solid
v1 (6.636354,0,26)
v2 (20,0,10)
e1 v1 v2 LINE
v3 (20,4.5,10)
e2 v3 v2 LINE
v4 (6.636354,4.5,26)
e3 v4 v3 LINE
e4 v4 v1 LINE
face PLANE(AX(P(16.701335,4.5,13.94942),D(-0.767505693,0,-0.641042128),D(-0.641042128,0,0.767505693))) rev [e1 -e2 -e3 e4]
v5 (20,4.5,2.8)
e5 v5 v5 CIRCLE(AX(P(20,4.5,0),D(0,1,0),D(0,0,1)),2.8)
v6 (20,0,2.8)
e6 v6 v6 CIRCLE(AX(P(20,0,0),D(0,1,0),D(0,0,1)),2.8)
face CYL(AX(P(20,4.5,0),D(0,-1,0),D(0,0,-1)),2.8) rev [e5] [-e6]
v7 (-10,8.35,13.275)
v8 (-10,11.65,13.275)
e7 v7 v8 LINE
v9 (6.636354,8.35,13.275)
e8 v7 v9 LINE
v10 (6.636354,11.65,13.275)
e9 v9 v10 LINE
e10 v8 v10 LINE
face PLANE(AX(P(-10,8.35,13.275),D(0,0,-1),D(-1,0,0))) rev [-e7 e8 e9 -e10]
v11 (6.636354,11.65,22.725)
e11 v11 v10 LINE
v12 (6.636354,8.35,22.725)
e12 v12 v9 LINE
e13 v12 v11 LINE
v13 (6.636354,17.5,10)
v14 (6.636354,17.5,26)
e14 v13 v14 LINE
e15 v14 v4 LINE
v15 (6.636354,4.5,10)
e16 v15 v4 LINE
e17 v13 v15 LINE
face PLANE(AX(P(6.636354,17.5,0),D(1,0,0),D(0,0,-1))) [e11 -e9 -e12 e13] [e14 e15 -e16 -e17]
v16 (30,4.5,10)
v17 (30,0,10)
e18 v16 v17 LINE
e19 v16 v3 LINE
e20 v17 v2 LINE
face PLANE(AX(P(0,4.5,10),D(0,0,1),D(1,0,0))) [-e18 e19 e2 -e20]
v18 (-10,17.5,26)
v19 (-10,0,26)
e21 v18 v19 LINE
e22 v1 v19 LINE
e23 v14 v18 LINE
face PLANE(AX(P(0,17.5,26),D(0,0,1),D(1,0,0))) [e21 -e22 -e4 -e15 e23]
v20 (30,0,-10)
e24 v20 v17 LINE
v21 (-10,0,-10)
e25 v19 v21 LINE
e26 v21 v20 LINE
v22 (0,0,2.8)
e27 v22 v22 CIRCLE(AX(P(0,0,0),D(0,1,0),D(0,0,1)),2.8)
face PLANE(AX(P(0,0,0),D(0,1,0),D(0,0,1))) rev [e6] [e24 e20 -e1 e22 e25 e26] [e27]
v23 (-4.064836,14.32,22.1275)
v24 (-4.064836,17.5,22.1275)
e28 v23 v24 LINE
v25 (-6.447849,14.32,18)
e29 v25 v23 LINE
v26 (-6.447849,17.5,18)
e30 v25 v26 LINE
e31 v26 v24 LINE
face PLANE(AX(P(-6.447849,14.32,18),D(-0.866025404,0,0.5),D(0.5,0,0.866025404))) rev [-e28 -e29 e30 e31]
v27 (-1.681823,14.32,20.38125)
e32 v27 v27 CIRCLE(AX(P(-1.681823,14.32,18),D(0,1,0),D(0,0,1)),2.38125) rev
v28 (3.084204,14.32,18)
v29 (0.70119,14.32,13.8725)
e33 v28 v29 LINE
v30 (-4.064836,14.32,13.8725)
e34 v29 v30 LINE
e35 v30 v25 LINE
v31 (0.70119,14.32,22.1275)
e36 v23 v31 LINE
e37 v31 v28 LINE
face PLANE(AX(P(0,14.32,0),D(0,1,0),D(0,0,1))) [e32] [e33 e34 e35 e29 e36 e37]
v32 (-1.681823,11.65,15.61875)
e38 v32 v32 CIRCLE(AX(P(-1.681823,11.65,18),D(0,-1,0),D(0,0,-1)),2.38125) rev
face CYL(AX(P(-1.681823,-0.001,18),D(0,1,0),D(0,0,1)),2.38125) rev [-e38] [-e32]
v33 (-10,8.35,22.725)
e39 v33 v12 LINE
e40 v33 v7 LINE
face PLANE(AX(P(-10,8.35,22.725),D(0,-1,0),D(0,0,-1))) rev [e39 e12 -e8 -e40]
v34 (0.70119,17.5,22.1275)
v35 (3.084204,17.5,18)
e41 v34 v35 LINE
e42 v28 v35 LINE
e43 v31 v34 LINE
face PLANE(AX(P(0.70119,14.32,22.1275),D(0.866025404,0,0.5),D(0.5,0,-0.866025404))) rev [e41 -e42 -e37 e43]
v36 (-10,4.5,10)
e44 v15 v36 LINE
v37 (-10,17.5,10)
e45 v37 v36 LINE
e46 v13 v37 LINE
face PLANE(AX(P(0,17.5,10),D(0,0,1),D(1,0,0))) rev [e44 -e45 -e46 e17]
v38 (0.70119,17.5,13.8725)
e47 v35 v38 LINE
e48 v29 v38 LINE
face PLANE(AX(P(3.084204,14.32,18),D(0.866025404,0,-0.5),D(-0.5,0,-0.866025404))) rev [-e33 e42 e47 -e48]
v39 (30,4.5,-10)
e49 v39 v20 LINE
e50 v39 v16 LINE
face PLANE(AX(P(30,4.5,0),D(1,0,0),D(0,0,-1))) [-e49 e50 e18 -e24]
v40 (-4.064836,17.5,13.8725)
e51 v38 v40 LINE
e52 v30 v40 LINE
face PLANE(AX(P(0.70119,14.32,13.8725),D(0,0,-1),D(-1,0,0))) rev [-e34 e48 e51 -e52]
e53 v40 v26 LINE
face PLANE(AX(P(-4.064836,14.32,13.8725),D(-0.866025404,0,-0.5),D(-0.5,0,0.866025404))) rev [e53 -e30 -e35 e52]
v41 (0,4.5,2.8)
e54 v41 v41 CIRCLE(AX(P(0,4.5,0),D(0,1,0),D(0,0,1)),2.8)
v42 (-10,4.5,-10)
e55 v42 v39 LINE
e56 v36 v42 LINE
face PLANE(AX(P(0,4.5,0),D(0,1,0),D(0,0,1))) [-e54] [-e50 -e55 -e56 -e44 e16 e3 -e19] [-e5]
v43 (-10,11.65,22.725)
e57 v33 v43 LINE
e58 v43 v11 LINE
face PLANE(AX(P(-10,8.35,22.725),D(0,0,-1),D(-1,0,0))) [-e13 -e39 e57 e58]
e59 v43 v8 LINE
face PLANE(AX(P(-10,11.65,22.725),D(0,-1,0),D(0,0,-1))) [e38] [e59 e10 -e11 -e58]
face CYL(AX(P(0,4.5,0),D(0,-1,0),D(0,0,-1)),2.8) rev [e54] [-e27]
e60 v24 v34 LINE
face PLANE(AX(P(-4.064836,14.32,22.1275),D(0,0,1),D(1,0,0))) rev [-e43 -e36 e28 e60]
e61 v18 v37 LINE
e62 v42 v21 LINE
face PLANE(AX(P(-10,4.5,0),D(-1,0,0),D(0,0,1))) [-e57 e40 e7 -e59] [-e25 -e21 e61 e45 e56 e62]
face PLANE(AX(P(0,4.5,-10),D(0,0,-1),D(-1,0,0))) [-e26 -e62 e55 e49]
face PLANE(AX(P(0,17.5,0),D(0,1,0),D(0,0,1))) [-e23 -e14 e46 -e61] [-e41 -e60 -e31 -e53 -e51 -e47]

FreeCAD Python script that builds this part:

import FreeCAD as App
import Part
import Sketcher
from FreeCAD import Vector
Q = App.Units.Quantity

doc = App.newDocument("Part")
params = doc.addObject("Spreadsheet::Sheet", "Params")
for row, (alias, value) in enumerate([
    ("sketch1_diameter", "5.6 mm"),
    ("sketch1_width", "40 mm"),
    ("sketch1_width2", "10 mm"),
    ("sketch1_height", "20 mm"),
    ("sketch1_height2", "16 mm"),
    ("pad1_length", "4.5 mm"),
    ("sketch2_height", "16 mm"),
    ("pad2_length", "17.5 mm"),
    ("sketch3_width", "3.3 mm"),
    ("sketch3_height", "9.45 mm"),
    ("pocket2_length", "3.18 mm"),
    ("pocket3_length", "5.85 mm"),
], start=1):
    params.set(f"A{row}", alias)
    params.set(f"B{row}", "=" + value)
    params.setAlias(f"B{row}", alias)

body = doc.addObject("PartDesign::Body", "Body")

# Sketch on XZ plane
sketch1 = body.newObject("Sketcher::SketchObject", "Sketch")
sketch1.AttachmentSupport = (doc.getObject("XZ_Plane"), [""])
sketch1.MapMode = "FlatFace"
sketch1.addGeometry([
    Part.LineSegment(Vector(30, -10, 0), Vector(-10, -10, 0)),  # 0
    Part.LineSegment(Vector(-10, -10, 0), Vector(-10, 10, 0)),  # 1
    Part.LineSegment(Vector(-10, 10, 0), Vector(6.6, 10, 0)),  # 2
    Part.LineSegment(Vector(6.6, 10, 0), Vector(6.6, 26, 0)),  # 3
    Part.LineSegment(Vector(6.6, 26, 0), Vector(20, 10, 0)),  # 4
    Part.LineSegment(Vector(20, 10, 0), Vector(30, 10, 0)),  # 5
    Part.LineSegment(Vector(30, 10, 0), Vector(30, -10, 0)),  # 6
    Part.Circle(Vector(0, 0, 0), Vector(0, 0, 1), 2.8),  # 7
    Part.Circle(Vector(20, 0, 0), Vector(0, 0, 1), 2.8),  # 8
], False)
sketch1.addConstraint([
    Sketcher.Constraint("Coincident", 0, 2, 1, 1),
    Sketcher.Constraint("Coincident", 1, 2, 2, 1),
    Sketcher.Constraint("Coincident", 2, 2, 3, 1),
    Sketcher.Constraint("Coincident", 3, 2, 4, 1),
    Sketcher.Constraint("Coincident", 4, 2, 5, 1),
    Sketcher.Constraint("Coincident", 5, 2, 6, 1),
    Sketcher.Constraint("Coincident", 6, 2, 0, 1),
    Sketcher.Constraint("Horizontal", 0),
    Sketcher.Constraint("Vertical", 1),
    Sketcher.Constraint("Horizontal", 2),
    Sketcher.Constraint("Vertical", 3),
    Sketcher.Constraint("Horizontal", 5),
    Sketcher.Constraint("Vertical", 6),
    Sketcher.Constraint("Coincident", 7, 3, -1, 1),
    Sketcher.Constraint("Equal", 7, 8),
    Sketcher.Constraint("PointOnObject", 8, 3, -1),
    Sketcher.Constraint("Horizontal", 2, 2, 4, 2),
    Sketcher.Constraint("Vertical", 8, 3, 4, 2),
    Sketcher.Constraint("Diameter", 7, 5.6),
    Sketcher.Constraint("DistanceX", 0, 2, 0, 1, 40.0),
    Sketcher.Constraint("DistanceX", 5, 1, 5, 2, 10.0),
    Sketcher.Constraint("DistanceY", 1, 1, 1, 2, 20.0),
    Sketcher.Constraint("DistanceY", 3, 1, 3, 2, 16.0),
    Sketcher.Constraint("DistanceX", -1, 1, 8, 3, 20.0),
    Sketcher.Constraint("DistanceY", 0, 2, -1, 1, 10.0),
    Sketcher.Constraint("Distance", 4, 20.846751),
])
sketch1.setExpression("Constraints[18]", "Params.sketch1_diameter")
sketch1.setExpression("Constraints[19]", "Params.sketch1_width")
sketch1.setExpression("Constraints[20]", "Params.sketch1_width2")
sketch1.setExpression("Constraints[21]", "Params.sketch1_height")
sketch1.setExpression("Constraints[22]", "Params.sketch1_height2")
pad1 = body.newObject("PartDesign::Pad", "Pad")
pad1.Profile = sketch1
pad1.setExpression("Length", "Params.pad1_length")
pad1.Reversed = True

# Sketch on XZ plane
sketch2 = body.newObject("Sketcher::SketchObject", "Sketch001")
sketch2.AttachmentSupport = (doc.getObject("XZ_Plane"), [""])
sketch2.MapMode = "FlatFace"
sketch2.addGeometry([
    Part.LineSegment(Vector(-10, 10, 0), Vector(-10, 26, 0)),
    Part.LineSegment(Vector(-10, 26, 0), Vector(7, 26, 0)),
    Part.LineSegment(Vector(7, 26, 0), Vector(7, 10, 0)),
    Part.LineSegment(Vector(7, 10, 0), Vector(-10, 10, 0)),
], False)
sketch2.addConstraint([
    Sketcher.Constraint("Coincident", 0, 2, 1, 1),
    Sketcher.Constraint("Coincident", 1, 2, 2, 1),
    Sketcher.Constraint("Coincident", 2, 2, 3, 1),
    Sketcher.Constraint("Coincident", 3, 2, 0, 1),
    Sketcher.Constraint("Vertical", 0),
    Sketcher.Constraint("Horizontal", 1),
    Sketcher.Constraint("Vertical", 2),
    Sketcher.Constraint("Horizontal", 3),
    Sketcher.Constraint("DistanceY", 0, 1, 0, 2, 16.0),
    Sketcher.Constraint("DistanceX", 0, 2, -1, 1, 10.0),
    Sketcher.Constraint("DistanceY", -1, 1, 0, 2, 26.0),
    Sketcher.Constraint("DistanceX", 1, 1, 1, 2, 16.636354),
])
sketch2.setExpression("Constraints[8]", "Params.sketch2_height")
pad2 = body.newObject("PartDesign::Pad", "Pad001")
pad2.Profile = sketch2
pad2.setExpression("Length", "Params.pad2_length")
pad2.Reversed = True

# Sketch on YZ plane
sketch3 = body.newObject("Sketcher::SketchObject", "Sketch002")
sketch3.AttachmentSupport = (doc.getObject("YZ_Plane"), [""])
sketch3.MapMode = "FlatFace"
sketch3.AttachmentOffset = App.Placement(Vector(0, 0, 6.636354), App.Rotation())
sketch3.addGeometry([
    Part.LineSegment(Vector(11.7, 22.7, 0), Vector(8.3, 22.7, 0)),
    Part.LineSegment(Vector(8.3, 22.7, 0), Vector(8.3, 13.3, 0)),
    Part.LineSegment(Vector(8.3, 13.3, 0), Vector(11.7, 13.3, 0)),
    Part.LineSegment(Vector(11.7, 13.3, 0), Vector(11.7, 22.7, 0)),
], False)
sketch3.addConstraint([
    Sketcher.Constraint("Coincident", 0, 2, 1, 1),
    Sketcher.Constraint("Coincident", 1, 2, 2, 1),
    Sketcher.Constraint("Coincident", 2, 2, 3, 1),
    Sketcher.Constraint("Coincident", 3, 2, 0, 1),
    Sketcher.Constraint("Horizontal", 0),
    Sketcher.Constraint("Vertical", 1),
    Sketcher.Constraint("Horizontal", 2),
    Sketcher.Constraint("Vertical", 3),
    Sketcher.Constraint("DistanceX", 0, 2, 0, 1, 3.3),
    Sketcher.Constraint("DistanceY", 1, 2, 1, 1, 9.45),
    Sketcher.Constraint("DistanceX", -1, 1, 0, 2, 8.35),
    Sketcher.Constraint("DistanceY", -1, 1, 0, 2, 22.725),
])
sketch3.setExpression("Constraints[8]", "Params.sketch3_width")
sketch3.setExpression("Constraints[9]", "Params.sketch3_height")
pocket1 = body.newObject("PartDesign::Pocket", "Pocket")
pocket1.Profile = sketch3
pocket1.Type = "ThroughAll"

# Sketch on XZ plane
sketch4 = body.newObject("Sketcher::SketchObject", "Sketch003")
sketch4.AttachmentSupport = (doc.getObject("XZ_Plane"), [""])
sketch4.MapMode = "FlatFace"
sketch4.AttachmentOffset = App.Placement(Vector(0, 0, -17.5), App.Rotation())
sketch4.addGeometry([
    Part.LineSegment(Vector(0.7, 13.9, 0), Vector(-4.1, 13.9, 0)),  # 0
    Part.LineSegment(Vector(-4.1, 13.9, 0), Vector(-6.4, 18, 0)),  # 1
    Part.LineSegment(Vector(-6.4, 18, 0), Vector(-4.1, 22.1, 0)),  # 2
    Part.LineSegment(Vector(-4.1, 22.1, 0), Vector(0.7, 22.1, 0)),  # 3
    Part.LineSegment(Vector(0.7, 22.1, 0), Vector(3.1, 18, 0)),  # 4
    Part.LineSegment(Vector(3.1, 18, 0), Vector(0.7, 13.9, 0)),  # 5
], False)
sketch4.addConstraint([
    Sketcher.Constraint("Coincident", 0, 2, 1, 1),
    Sketcher.Constraint("Coincident", 1, 2, 2, 1),
    Sketcher.Constraint("Coincident", 2, 2, 3, 1),
    Sketcher.Constraint("Coincident", 3, 2, 4, 1),
    Sketcher.Constraint("Coincident", 4, 2, 5, 1),
    Sketcher.Constraint("Coincident", 5, 2, 0, 1),
    Sketcher.Constraint("Horizontal", 0),
    Sketcher.Constraint("Horizontal", 3),
    Sketcher.Constraint("Parallel", 1, 4),
    Sketcher.Constraint("Parallel", 2, 5),
    Sketcher.Constraint("Horizontal", 1, 2, 4, 2),
    Sketcher.Constraint("Vertical", 0, 2, 2, 2),
    Sketcher.Constraint("Vertical", 3, 2, 5, 2),
    Sketcher.Constraint("Angle", 1, Q("120 deg")),
    Sketcher.Constraint("DistanceY", -1, 1, 1, 2, 18.0),
    Sketcher.Constraint("DistanceY", 0, 2, 2, 2, 8.255),
    Sketcher.Constraint("DistanceX", 0, 2, 0, 1, 4.766026),
    Sketcher.Constraint("DistanceX", 1, 2, -1, 1, 6.447849),
])
pocket2 = body.newObject("PartDesign::Pocket", "Pocket001")
pocket2.Profile = sketch4
pocket2.setExpression("Length", "Params.pocket2_length")
pocket2.Reversed = True

# Sketch on XZ plane
sketch5 = body.newObject("Sketcher::SketchObject", "Sketch004")
sketch5.AttachmentSupport = (doc.getObject("XZ_Plane"), [""])
sketch5.MapMode = "FlatFace"
sketch5.AttachmentOffset = App.Placement(Vector(0, 0, -17.5), App.Rotation())
sketch5.addGeometry(Part.Circle(Vector(-1.7, 18, 0), Vector(0, 0, 1), 2.4), False)
sketch5.addConstraint([
    Sketcher.Constraint("DistanceY", -1, 1, 0, 3, 18.0),
    Sketcher.Constraint("Diameter", 0, 4.7625),
    Sketcher.Constraint("DistanceX", 0, 3, -1, 1, 1.681823),
])
pocket3 = body.newObject("PartDesign::Pocket", "Pocket002")
pocket3.Profile = sketch5
pocket3.setExpression("Length", "Params.pocket3_length")
pocket3.Reversed = True

doc.recompute()
